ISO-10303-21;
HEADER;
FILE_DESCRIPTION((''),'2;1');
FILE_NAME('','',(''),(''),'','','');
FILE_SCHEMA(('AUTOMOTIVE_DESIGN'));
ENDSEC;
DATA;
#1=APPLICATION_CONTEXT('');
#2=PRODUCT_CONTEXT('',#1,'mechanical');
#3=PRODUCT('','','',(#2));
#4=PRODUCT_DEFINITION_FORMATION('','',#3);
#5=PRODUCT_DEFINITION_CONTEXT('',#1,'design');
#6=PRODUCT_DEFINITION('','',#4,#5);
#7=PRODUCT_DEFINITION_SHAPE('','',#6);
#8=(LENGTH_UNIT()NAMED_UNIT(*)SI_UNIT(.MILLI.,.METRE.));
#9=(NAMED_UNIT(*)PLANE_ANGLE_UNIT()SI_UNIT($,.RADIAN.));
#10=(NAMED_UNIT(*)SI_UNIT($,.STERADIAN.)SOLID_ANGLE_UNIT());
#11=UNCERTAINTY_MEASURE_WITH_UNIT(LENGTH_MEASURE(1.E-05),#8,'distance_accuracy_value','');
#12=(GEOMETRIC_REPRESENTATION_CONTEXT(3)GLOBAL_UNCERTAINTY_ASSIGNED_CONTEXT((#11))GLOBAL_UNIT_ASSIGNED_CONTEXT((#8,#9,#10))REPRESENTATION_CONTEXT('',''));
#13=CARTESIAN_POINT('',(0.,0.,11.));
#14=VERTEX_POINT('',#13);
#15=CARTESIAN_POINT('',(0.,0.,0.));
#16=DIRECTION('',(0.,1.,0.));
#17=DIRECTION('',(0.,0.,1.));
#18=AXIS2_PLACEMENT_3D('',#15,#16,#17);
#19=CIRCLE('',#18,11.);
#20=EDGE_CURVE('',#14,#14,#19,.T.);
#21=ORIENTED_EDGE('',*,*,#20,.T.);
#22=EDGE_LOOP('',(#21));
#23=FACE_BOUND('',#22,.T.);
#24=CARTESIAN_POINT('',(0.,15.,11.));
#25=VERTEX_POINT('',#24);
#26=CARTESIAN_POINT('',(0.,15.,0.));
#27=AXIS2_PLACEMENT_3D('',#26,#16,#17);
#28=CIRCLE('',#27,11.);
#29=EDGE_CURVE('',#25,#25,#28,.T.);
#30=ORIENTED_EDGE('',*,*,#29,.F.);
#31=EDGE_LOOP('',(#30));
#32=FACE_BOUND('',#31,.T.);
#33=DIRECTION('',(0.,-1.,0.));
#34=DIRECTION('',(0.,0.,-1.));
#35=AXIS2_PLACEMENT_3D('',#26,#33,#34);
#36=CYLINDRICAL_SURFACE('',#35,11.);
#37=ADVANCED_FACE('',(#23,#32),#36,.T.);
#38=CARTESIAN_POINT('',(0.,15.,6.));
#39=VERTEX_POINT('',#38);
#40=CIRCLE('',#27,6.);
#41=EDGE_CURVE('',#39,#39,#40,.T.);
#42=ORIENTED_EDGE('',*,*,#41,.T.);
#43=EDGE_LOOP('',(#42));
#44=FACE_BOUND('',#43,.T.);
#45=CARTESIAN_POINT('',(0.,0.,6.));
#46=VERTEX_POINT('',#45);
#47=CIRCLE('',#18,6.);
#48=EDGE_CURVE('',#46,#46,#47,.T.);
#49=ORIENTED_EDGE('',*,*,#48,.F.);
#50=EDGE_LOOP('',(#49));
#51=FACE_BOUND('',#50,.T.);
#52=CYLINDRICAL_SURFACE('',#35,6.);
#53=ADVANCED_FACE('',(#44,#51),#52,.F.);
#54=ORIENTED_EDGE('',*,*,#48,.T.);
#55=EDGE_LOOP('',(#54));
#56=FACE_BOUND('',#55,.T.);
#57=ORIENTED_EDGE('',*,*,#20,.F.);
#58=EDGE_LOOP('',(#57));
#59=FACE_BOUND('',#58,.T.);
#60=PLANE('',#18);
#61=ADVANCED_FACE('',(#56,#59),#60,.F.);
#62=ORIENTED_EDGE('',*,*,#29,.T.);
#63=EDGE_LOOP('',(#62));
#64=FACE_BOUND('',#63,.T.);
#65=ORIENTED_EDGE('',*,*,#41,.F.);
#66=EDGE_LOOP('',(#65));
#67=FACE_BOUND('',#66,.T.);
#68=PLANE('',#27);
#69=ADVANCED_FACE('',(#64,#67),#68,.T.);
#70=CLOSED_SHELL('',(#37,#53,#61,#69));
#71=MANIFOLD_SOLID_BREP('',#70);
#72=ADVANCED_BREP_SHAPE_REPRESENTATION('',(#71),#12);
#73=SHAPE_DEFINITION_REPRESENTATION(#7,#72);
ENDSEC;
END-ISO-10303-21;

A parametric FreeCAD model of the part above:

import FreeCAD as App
import Part
import Sketcher
from FreeCAD import Vector

doc = App.newDocument("Part")
body = doc.addObject("PartDesign::Body", "Body")

# Sketch on XZ plane
sketch1 = doc.addObject("Sketcher::SketchObject", "Sketch")
body.addObject(sketch1)
sketch1.AttachmentSupport = (doc.XZ_Plane, [""])
sketch1.MapMode = "FlatFace"
sketch1.addGeometry([
    Part.Circle(Vector(0, 0, 0), Vector(0, 0, 1), 11),
    Part.Circle(Vector(0, 0, 0), Vector(0, 0, 1), 6),
], False)
sketch1.addConstraint([
    Sketcher.Constraint("Coincident", 0, 3, -1, 1),
    Sketcher.Constraint("Coincident", 1, 3, -1, 1),
    Sketcher.Constraint("Diameter", 0, 22.0),
    Sketcher.Constraint("Diameter", 1, 12.0),
])
pad1 = doc.addObject("PartDesign::Pad", "Pad")
body.addObject(pad1)
pad1.Profile = sketch1
pad1.Length = 15
pad1.Reversed = True

doc.recompute()
